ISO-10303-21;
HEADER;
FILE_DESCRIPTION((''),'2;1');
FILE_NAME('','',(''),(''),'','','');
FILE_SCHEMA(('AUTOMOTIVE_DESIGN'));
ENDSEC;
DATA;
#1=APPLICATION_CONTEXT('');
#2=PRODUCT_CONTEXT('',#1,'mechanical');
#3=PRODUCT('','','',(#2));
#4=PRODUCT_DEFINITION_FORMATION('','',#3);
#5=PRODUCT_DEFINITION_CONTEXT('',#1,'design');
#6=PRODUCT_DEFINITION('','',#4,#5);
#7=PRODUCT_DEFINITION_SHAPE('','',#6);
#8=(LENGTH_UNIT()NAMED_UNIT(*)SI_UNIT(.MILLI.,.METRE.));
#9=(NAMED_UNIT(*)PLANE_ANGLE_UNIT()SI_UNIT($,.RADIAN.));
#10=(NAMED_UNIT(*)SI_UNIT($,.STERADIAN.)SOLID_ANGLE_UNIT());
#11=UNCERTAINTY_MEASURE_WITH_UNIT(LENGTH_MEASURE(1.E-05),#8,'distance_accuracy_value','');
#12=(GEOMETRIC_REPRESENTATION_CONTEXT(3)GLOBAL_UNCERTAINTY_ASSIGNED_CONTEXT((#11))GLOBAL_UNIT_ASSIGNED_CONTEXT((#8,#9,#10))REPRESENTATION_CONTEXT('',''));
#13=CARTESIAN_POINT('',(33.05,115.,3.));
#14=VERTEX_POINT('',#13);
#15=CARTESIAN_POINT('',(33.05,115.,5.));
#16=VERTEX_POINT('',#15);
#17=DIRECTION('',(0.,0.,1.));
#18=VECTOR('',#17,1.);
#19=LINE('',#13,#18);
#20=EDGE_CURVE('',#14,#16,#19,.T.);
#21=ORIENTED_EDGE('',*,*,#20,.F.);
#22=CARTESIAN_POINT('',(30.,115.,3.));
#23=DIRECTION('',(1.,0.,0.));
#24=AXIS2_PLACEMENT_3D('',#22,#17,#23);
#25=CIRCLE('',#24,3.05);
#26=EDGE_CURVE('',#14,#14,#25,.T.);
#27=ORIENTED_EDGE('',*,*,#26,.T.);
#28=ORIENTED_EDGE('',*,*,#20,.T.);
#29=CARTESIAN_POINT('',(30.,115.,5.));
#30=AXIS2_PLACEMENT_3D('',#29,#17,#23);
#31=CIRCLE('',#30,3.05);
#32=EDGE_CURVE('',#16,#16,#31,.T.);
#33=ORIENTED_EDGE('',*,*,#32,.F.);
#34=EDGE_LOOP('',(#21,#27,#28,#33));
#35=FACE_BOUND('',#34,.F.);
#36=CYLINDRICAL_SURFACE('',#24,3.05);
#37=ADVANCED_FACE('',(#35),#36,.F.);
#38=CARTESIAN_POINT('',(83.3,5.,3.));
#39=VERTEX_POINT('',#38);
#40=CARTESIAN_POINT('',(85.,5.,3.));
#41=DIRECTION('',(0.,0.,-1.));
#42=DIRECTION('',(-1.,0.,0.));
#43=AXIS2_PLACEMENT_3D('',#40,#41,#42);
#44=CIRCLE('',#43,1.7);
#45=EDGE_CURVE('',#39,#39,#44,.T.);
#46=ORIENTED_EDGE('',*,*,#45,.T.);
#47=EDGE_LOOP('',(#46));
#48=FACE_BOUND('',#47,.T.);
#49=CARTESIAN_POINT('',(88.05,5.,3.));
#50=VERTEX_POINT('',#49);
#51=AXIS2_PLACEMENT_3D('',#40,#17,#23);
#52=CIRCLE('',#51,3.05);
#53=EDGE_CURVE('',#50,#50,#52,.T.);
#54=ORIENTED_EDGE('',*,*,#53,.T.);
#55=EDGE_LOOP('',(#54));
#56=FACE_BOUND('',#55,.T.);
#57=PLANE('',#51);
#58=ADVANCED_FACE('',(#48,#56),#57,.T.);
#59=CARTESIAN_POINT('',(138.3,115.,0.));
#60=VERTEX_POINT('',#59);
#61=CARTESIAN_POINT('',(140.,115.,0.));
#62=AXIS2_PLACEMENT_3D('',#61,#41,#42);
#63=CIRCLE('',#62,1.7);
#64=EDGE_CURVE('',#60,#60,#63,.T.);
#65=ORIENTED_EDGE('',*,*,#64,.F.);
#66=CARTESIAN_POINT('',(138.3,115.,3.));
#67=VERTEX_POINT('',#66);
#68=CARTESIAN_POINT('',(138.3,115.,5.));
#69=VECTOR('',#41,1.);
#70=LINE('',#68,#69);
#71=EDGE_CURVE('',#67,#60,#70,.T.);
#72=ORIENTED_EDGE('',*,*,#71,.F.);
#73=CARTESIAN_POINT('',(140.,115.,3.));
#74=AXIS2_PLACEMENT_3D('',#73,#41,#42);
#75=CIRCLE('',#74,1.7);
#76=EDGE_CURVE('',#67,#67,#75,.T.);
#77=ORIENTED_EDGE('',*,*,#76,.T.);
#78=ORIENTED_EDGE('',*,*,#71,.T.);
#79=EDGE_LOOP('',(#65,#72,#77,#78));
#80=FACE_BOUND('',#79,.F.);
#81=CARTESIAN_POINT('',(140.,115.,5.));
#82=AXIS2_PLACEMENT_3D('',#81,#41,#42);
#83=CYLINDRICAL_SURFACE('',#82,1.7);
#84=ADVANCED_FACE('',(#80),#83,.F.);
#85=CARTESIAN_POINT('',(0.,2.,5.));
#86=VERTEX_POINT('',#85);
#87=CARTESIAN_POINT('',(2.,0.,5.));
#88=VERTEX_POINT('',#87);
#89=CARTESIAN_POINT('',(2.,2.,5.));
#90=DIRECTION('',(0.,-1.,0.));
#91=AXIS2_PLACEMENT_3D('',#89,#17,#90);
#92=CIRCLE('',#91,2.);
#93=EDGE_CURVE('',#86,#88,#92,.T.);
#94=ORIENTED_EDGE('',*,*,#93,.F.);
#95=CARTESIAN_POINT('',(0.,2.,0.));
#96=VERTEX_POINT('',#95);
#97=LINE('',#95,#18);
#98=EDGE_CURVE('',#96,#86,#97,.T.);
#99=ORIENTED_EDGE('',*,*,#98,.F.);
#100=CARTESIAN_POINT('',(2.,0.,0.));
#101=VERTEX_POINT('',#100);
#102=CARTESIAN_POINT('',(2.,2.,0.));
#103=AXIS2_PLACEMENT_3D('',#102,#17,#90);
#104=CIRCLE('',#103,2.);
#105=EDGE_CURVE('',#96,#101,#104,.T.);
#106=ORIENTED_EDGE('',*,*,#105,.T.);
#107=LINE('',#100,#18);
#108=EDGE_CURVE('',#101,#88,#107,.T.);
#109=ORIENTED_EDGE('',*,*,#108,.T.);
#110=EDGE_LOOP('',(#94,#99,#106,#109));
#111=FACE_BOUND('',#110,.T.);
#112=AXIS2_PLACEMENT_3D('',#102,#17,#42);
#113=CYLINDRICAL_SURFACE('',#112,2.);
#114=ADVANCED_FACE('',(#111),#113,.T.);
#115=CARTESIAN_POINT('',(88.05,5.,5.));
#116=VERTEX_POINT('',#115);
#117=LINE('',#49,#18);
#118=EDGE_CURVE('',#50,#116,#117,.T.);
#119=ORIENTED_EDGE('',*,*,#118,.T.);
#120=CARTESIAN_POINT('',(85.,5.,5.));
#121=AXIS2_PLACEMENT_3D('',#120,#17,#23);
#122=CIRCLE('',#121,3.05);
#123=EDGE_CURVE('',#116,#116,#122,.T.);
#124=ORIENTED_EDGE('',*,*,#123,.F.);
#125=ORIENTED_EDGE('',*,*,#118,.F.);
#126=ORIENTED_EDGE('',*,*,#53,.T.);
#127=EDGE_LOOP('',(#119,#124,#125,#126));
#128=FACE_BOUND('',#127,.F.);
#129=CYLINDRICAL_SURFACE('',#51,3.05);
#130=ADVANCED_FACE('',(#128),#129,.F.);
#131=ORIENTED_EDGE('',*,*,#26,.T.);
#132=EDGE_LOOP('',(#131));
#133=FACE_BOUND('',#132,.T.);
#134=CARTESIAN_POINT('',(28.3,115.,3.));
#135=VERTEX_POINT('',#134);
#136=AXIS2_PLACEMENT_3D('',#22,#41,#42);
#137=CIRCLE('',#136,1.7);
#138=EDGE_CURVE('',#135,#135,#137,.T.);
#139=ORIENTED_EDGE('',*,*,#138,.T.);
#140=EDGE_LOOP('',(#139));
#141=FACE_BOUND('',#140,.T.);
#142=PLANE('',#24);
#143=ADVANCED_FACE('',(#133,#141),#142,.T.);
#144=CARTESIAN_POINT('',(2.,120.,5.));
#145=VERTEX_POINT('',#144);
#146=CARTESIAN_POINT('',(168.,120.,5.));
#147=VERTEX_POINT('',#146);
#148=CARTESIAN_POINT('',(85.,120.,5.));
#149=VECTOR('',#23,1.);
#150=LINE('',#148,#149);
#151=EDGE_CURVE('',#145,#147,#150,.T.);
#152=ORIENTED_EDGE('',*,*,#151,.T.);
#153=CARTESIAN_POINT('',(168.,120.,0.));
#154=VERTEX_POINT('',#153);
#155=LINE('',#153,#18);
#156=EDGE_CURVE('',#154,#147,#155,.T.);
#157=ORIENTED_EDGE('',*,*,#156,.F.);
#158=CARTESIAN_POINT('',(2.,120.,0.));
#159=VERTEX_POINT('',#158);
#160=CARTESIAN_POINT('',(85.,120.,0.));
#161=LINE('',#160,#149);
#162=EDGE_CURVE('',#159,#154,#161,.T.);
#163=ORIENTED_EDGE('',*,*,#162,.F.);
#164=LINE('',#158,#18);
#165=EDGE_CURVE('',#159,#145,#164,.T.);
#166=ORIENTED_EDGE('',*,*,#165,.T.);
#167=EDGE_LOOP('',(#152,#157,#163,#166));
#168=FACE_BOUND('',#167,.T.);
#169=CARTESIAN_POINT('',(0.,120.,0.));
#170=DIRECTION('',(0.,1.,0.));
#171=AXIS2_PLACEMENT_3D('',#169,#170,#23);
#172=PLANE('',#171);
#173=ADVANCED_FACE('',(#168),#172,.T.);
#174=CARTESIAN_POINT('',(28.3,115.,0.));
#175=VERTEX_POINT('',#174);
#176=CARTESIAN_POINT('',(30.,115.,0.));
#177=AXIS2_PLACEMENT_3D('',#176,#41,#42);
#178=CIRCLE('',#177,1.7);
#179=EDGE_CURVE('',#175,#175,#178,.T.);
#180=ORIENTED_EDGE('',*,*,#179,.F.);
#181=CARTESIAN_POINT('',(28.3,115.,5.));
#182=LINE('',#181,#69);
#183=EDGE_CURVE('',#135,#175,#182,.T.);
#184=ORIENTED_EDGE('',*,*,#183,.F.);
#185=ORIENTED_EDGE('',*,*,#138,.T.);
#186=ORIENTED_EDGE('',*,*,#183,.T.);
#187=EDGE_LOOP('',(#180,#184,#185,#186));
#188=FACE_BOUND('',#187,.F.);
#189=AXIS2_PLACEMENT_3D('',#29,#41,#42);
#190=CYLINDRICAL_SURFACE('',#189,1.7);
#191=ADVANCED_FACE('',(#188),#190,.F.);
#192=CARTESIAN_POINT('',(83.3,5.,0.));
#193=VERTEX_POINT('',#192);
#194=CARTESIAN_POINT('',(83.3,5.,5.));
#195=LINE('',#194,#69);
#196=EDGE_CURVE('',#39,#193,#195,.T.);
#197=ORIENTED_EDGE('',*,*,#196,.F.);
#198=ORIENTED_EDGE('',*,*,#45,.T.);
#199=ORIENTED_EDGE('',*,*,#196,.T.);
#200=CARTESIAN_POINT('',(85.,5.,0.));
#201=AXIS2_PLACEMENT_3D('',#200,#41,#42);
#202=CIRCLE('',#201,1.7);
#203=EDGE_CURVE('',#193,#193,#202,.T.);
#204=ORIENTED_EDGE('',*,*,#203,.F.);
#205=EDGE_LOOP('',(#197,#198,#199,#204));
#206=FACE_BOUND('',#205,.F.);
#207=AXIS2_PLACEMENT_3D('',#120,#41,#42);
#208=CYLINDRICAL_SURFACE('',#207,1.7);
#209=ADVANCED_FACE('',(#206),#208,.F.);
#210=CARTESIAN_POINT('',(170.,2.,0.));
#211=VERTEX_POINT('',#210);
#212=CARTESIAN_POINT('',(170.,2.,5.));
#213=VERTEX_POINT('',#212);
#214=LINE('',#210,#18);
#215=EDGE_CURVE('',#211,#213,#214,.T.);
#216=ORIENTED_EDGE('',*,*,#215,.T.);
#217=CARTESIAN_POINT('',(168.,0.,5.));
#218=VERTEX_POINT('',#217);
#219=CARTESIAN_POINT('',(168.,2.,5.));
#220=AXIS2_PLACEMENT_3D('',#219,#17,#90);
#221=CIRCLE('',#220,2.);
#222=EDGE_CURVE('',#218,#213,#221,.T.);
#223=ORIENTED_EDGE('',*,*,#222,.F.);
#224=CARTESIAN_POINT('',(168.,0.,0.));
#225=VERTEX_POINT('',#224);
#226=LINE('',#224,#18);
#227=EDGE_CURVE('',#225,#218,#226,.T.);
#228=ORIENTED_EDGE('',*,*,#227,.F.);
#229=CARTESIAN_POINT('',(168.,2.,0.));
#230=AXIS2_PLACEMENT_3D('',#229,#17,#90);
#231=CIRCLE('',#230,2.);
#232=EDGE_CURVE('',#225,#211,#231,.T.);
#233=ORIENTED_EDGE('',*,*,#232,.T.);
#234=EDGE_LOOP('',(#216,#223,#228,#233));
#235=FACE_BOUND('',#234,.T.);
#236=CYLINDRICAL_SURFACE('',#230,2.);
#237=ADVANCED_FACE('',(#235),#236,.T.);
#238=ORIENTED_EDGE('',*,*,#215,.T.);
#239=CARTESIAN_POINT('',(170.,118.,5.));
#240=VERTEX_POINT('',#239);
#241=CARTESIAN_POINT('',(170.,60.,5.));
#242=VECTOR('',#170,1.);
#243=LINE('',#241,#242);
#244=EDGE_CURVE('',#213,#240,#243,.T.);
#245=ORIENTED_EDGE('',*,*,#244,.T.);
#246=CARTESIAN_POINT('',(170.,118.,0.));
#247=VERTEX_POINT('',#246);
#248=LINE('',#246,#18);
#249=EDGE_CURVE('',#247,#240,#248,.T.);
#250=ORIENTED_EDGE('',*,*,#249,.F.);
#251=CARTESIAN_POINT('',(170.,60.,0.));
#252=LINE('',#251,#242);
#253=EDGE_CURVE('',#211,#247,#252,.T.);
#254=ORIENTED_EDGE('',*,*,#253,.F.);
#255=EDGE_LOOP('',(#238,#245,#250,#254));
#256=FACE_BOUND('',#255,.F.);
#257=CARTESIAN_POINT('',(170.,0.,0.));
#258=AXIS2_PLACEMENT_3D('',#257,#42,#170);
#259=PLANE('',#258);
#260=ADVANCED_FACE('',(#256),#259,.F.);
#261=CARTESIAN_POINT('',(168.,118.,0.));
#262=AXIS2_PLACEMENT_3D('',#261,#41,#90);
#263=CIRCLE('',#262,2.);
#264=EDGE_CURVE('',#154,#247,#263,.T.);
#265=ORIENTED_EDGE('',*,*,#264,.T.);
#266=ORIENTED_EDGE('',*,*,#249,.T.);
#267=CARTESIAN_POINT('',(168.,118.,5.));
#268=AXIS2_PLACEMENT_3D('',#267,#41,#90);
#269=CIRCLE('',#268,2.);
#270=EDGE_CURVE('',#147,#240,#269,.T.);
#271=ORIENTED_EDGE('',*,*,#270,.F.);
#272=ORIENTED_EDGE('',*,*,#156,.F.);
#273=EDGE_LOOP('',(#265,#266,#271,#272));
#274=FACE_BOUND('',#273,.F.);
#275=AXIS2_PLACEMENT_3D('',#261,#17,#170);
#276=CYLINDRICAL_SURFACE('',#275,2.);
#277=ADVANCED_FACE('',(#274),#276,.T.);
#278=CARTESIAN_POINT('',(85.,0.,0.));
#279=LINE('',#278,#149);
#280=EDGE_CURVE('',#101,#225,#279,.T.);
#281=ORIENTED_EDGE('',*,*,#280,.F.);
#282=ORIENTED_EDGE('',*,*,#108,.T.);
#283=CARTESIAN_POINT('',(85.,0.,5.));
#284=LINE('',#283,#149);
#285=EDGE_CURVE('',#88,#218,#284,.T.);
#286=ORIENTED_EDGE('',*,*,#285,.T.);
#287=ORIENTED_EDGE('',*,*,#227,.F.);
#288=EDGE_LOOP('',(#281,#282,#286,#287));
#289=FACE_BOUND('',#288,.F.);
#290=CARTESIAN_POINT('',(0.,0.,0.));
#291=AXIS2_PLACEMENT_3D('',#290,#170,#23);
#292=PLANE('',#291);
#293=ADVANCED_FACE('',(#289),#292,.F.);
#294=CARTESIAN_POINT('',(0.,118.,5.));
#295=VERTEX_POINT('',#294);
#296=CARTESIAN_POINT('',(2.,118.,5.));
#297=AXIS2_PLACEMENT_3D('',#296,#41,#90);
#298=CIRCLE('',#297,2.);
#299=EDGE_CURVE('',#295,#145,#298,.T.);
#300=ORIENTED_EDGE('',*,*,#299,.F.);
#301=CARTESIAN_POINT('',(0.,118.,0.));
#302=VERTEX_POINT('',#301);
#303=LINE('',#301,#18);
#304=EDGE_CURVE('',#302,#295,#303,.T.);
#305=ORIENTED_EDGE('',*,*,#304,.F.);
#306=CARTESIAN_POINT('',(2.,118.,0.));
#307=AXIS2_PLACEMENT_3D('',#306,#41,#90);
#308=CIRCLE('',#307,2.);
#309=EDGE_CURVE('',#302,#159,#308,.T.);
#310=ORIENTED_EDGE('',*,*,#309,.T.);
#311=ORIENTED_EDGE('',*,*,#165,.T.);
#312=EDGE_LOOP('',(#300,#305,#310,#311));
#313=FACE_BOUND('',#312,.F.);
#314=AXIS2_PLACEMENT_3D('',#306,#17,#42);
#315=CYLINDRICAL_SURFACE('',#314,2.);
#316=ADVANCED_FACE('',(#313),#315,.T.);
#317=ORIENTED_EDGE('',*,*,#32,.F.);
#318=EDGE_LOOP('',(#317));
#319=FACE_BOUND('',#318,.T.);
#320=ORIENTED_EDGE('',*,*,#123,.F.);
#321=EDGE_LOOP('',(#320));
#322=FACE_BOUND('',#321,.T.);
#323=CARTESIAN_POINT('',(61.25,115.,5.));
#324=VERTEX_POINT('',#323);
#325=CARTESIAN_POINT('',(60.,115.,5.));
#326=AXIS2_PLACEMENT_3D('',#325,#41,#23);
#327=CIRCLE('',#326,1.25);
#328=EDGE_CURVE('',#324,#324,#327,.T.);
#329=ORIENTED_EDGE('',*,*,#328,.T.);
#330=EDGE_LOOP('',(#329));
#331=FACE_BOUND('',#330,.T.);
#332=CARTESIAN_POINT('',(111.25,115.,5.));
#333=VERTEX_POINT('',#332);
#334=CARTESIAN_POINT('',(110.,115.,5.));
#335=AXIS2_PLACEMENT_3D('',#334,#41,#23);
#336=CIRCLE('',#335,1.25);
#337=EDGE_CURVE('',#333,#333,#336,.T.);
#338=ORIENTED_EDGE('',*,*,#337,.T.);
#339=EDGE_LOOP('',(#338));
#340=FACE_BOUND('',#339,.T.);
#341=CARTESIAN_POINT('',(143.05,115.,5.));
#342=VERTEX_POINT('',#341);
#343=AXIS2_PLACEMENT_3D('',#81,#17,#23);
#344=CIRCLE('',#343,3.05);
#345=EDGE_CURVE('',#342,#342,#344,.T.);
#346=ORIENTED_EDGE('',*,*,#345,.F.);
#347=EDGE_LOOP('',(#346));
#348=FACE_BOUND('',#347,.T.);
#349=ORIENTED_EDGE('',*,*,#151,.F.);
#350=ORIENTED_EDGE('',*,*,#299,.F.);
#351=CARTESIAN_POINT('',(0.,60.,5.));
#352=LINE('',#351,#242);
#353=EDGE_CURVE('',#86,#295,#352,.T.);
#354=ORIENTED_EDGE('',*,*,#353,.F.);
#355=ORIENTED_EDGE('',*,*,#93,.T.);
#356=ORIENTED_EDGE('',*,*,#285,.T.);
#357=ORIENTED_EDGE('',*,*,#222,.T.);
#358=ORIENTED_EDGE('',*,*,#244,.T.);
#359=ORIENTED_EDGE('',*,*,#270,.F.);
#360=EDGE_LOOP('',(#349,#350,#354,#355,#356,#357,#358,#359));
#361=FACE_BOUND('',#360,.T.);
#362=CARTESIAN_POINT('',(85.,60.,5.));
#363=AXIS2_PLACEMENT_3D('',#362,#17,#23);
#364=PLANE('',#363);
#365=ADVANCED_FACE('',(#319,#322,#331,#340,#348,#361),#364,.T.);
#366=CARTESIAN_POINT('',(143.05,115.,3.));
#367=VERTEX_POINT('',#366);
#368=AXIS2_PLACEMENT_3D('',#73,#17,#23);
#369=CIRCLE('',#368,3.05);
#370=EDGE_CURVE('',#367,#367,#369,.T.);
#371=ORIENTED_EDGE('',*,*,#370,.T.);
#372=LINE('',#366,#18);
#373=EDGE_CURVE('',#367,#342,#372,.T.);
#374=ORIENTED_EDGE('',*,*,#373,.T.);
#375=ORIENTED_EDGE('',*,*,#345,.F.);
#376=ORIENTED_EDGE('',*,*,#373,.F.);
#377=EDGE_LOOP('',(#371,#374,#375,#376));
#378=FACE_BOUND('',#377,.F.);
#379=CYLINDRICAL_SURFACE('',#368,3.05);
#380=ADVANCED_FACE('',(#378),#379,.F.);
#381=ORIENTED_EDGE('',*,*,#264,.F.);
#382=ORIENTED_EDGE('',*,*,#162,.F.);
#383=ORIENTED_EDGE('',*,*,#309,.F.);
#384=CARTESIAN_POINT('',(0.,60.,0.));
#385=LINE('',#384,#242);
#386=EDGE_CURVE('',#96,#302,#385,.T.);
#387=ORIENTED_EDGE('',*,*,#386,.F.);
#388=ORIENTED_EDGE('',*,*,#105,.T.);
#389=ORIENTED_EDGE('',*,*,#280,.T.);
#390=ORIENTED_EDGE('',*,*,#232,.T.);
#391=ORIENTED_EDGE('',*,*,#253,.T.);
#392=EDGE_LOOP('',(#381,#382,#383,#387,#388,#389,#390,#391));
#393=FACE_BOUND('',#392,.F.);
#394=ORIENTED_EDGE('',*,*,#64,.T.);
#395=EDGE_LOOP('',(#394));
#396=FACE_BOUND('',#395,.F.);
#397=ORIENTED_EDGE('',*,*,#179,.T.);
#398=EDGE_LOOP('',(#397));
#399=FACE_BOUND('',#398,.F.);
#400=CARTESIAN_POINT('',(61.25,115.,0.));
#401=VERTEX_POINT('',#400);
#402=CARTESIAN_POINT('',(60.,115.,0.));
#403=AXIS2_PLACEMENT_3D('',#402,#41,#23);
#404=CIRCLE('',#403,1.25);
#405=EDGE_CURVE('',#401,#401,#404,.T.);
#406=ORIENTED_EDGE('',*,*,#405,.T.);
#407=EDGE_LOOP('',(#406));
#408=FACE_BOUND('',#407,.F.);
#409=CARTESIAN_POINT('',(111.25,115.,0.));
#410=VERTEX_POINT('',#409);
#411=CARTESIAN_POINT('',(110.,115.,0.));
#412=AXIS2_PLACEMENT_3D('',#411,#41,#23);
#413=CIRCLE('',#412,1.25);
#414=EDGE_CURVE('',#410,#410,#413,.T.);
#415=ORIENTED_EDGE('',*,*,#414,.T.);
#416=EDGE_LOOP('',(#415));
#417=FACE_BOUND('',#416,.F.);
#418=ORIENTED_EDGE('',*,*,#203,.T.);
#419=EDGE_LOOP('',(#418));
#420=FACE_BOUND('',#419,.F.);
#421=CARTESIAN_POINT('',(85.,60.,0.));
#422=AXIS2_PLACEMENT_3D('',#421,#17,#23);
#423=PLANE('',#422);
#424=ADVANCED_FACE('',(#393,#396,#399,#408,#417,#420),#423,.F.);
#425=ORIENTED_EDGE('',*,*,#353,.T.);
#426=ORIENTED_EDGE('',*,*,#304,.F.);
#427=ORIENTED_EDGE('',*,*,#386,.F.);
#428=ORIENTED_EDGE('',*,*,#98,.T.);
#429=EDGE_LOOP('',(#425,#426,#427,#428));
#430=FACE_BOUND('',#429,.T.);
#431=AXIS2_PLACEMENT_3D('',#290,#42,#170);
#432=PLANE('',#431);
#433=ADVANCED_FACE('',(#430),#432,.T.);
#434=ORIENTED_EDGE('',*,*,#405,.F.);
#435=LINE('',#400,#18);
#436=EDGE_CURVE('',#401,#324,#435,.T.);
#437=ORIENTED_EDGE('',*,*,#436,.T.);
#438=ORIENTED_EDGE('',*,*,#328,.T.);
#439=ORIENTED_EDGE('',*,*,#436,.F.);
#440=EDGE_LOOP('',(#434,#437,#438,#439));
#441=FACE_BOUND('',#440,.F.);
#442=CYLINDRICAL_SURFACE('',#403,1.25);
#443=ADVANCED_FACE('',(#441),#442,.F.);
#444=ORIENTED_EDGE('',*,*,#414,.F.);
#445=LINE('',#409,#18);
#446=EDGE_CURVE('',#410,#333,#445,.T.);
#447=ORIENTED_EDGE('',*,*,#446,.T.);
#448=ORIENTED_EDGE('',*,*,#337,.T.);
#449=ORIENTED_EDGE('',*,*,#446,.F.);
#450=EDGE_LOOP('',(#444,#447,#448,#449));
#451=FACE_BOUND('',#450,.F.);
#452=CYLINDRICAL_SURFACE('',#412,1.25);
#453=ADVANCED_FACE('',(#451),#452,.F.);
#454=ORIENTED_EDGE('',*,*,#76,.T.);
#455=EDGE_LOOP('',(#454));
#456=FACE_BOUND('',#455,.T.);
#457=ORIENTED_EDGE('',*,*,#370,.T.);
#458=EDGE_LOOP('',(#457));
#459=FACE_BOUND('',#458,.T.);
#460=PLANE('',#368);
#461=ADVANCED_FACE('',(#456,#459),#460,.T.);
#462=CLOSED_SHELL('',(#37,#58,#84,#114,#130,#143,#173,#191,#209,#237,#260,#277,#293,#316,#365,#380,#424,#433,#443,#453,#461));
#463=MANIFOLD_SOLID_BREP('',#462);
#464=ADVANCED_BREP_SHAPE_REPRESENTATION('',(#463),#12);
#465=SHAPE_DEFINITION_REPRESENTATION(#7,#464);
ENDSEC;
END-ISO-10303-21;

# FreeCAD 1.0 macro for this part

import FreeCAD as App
import Part
import Sketcher

V = App.Vector
Q = App.Units.Quantity


def edges_at(feature, points):
    """Names of the edges that pass closest to the given points."""
    edges = feature.Shape.Edges
    near = lambda p: min(range(len(edges)), key=lambda i: edges[i].distToShape(Part.Vertex(*p))[0])
    return sorted({f"Edge{near(p) + 1}" for p in points})


def add_polygon(sketch, points):
    """Adds a closed chain of lines whose ends are joined by coincident constraints."""
    first, n = sketch.GeometryCount, len(points)
    for a, b in zip(points, points[1:] + points[:1]):
        sketch.addGeometry(Part.LineSegment(App.Vector(*a, 0), App.Vector(*b, 0)), False)
    for i in range(n):
        sketch.addConstraint(Sketcher.Constraint("Coincident", first + i, 2, first + (i + 1) % n, 1))

doc = App.newDocument("Part")
body = doc.addObject("PartDesign::Body", "Body")

# Sketch on XY plane
sketch1 = body.newObject("Sketcher::SketchObject", "Sketch")
sketch1.AttachmentSupport = (doc.getObject("XY_Plane"), [""])
sketch1.MapMode = "FlatFace"
add_polygon(sketch1, [(0, 120), (0, 0), (170, 0), (170, 120)])  # lines 0-3
sketch1.addConstraint([
    Sketcher.Constraint("Vertical", 0),
    Sketcher.Constraint("Horizontal", 1),
    Sketcher.Constraint("Vertical", 2),
    Sketcher.Constraint("Horizontal", 3),
    Sketcher.Constraint("Coincident", 0, 2, -1, 1),
    Sketcher.Constraint("DistanceX", 1, 1, 1, 2, Q("170 mm")),
    Sketcher.Constraint("DistanceY", 0, 2, 0, 1, Q("120 mm")),
])
pad1 = body.newObject("PartDesign::Pad", "Pad")
pad1.Profile = sketch1
pad1.Length = 5

# Sketch on XY plane
sketch2 = body.newObject("Sketcher::SketchObject", "Sketch001")
sketch2.AttachmentSupport = (doc.getObject("XY_Plane"), [""])
sketch2.MapMode = "FlatFace"
sketch2.AttachmentOffset = App.Placement(V(0, 0, 5), App.Rotation())
sketch2.addGeometry([
    Part.Circle(V(30, 115, 0), V(0, 0, 1), 1.7),
    Part.Circle(V(140, 115, 0), V(0, 0, 1), 1.7),
    Part.Circle(V(85, 5, 0), V(0, 0, 1), 1.7),
], False)
sketch2.addConstraint([
    Sketcher.Constraint("Equal", 0, 1),
    Sketcher.Constraint("Equal", 1, 2),
    Sketcher.Constraint("Horizontal", 0, 3, 1, 3),
    Sketcher.Constraint("Diameter", 0, Q("3.4 mm")),
    Sketcher.Constraint("DistanceX", -1, 1, 0, 3, Q("30 mm")),
    Sketcher.Constraint("DistanceY", -1, 1, 0, 3, Q("115 mm")),
    Sketcher.Constraint("DistanceX", -1, 1, 1, 3, Q("140 mm")),
    Sketcher.Constraint("DistanceX", -1, 1, 2, 3, Q("85 mm")),
    Sketcher.Constraint("DistanceY", -1, 1, 2, 3, Q("5 mm")),
])
doc.recompute()
hole = body.newObject("PartDesign::Hole", "Hole")
hole.Profile = sketch2
hole.ThreadType = "None"
hole.Diameter = 3.4
hole.DepthType = "Dimension"
hole.Depth = 25
hole.DrillPoint = "Flat"
hole.HoleCutType = "Counterbore"
hole.HoleCutDiameter = 6.1
hole.HoleCutDepth = 2

# Sketch on XY plane
sketch3 = body.newObject("Sketcher::SketchObject", "Sketch002")
sketch3.AttachmentSupport = (doc.getObject("XY_Plane"), [""])
sketch3.MapMode = "FlatFace"
sketch3.addGeometry([
    Part.Circle(V(60, 115, 0), V(0, 0, 1), 1.2),
    Part.Circle(V(110, 115, 0), V(0, 0, 1), 1.2),
], False)
sketch3.addConstraint([
    Sketcher.Constraint("Equal", 0, 1),
    Sketcher.Constraint("Horizontal", 0, 3, 1, 3),
    Sketcher.Constraint("Diameter", 0, Q("2.5 mm")),
    Sketcher.Constraint("DistanceX", -1, 1, 0, 3, Q("60 mm")),
    Sketcher.Constraint("DistanceY", -1, 1, 0, 3, Q("115 mm")),
    Sketcher.Constraint("DistanceX", -1, 1, 1, 3, Q("110 mm")),
])
pocket1 = body.newObject("PartDesign::Pocket", "Pocket")
pocket1.Profile = sketch3
pocket1.Type = "ThroughAll"
pocket1.Reversed = True
doc.recompute()

fillet = body.newObject("PartDesign::Fillet", "Fillet")
fillet.Base = (pocket1, edges_at(pocket1, [
    (0, 120, 2.5),
    (170, 0, 2.5),
    (0, 0, 2.5),
    (170, 120, 2.5),
]))
fillet.Radius = 2

doc.recompute()
